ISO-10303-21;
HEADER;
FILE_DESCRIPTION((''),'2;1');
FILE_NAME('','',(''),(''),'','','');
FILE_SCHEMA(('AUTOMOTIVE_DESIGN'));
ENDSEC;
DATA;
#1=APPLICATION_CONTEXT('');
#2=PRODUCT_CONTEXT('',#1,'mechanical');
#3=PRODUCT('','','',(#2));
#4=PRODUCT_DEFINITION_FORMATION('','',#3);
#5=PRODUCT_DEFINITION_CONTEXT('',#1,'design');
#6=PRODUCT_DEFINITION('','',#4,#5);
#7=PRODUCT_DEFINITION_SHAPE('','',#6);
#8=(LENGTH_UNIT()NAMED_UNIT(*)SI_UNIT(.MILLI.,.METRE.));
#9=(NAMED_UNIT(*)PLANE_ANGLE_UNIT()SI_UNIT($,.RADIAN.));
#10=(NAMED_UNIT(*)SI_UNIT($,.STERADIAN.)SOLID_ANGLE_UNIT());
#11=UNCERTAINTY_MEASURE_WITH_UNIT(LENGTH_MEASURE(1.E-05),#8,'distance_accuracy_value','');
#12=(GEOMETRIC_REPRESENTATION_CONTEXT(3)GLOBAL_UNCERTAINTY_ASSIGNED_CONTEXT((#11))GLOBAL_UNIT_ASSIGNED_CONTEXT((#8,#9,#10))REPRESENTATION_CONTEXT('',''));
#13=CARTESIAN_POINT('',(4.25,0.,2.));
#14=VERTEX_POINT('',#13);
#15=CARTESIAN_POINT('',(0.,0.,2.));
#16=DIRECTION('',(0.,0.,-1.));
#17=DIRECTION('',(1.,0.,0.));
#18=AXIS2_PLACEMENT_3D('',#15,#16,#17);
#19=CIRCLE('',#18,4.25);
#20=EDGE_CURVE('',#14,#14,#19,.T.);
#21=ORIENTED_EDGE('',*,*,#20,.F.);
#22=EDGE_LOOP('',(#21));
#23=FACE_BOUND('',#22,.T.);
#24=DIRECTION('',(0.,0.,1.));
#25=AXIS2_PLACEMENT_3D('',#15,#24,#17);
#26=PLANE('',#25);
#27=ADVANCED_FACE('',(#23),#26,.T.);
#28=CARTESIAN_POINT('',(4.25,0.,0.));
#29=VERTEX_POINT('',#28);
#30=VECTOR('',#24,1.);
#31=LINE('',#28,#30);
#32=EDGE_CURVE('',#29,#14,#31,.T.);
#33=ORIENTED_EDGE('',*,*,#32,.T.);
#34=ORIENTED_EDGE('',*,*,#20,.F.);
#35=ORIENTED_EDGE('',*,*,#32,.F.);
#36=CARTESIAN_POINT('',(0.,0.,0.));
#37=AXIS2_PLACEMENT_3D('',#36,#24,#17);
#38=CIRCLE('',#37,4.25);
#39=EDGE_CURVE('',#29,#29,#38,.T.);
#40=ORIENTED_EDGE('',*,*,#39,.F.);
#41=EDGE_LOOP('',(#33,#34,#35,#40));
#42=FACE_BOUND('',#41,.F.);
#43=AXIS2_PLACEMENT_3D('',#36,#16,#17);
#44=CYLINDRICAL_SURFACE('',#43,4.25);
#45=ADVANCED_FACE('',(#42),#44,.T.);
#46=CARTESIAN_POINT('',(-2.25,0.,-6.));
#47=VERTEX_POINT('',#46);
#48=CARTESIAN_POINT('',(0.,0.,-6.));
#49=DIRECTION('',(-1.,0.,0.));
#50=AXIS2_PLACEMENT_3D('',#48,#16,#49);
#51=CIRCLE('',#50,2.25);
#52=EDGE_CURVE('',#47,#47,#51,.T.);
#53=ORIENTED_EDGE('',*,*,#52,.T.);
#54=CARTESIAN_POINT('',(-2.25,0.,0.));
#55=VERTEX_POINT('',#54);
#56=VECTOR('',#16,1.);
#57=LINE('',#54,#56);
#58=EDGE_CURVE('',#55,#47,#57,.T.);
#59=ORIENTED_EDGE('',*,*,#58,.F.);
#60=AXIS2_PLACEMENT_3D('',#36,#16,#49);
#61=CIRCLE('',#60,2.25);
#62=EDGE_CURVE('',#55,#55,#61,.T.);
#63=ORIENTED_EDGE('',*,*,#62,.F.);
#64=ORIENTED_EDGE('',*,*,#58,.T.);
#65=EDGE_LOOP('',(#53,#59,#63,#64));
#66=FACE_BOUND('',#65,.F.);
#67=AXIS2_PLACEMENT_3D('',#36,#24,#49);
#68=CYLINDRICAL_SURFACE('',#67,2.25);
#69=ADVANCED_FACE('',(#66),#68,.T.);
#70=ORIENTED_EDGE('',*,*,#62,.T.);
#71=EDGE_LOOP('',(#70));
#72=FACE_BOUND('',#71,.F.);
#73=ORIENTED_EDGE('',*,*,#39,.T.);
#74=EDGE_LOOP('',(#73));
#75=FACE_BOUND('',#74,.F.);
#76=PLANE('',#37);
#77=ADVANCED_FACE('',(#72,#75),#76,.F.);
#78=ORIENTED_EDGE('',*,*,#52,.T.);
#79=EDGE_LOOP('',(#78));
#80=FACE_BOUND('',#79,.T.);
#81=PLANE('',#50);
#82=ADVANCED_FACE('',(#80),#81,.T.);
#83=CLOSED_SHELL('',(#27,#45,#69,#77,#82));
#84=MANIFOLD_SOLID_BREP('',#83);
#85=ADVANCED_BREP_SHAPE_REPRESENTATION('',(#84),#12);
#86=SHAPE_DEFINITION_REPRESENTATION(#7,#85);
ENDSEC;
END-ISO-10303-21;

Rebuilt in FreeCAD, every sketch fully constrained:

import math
import FreeCAD as App
import Part
import Sketcher

V = App.Vector
Q = App.Units.Quantity

doc = App.newDocument("Part")
body = doc.addObject("PartDesign::Body", "Body")

sketch1 = doc.addObject("Sketcher::SketchObject", "Sketch")
body.addObject(sketch1)
sketch1.AttachmentSupport = (doc.XY_Plane, [""])
sketch1.MapMode = "FlatFace"
sketch1.addGeometry(Part.Circle(V(0, 0, 0), V(0, 0, 1), 4.2), False)
sketch1.addConstraint(Sketcher.Constraint("Coincident", 0, 3, -1, 1))
sketch1.addConstraint(Sketcher.Constraint("Diameter", 0, Q("8.5 mm")))
pad1 = doc.addObject("PartDesign::Pad", "Pad")
body.addObject(pad1)
pad1.Profile = sketch1
pad1.Length = 2

sketch2 = doc.addObject("Sketcher::SketchObject", "Sketch001")
body.addObject(sketch2)
sketch2.AttachmentSupport = (doc.XY_Plane, [""])
sketch2.MapMode = "FlatFace"
sketch2.addGeometry(Part.Circle(V(0, 0, 0), V(0, 0, 1), 2.2), False)
sketch2.addConstraint(Sketcher.Constraint("Coincident", 0, 3, -1, 1))
sketch2.addConstraint(Sketcher.Constraint("Diameter", 0, Q("4.5 mm")))
pad2 = doc.addObject("PartDesign::Pad", "Pad001")
body.addObject(pad2)
pad2.Profile = sketch2
pad2.Length = 6
pad2.Reversed = True

sketch3 = doc.addObject("Sketcher::SketchObject", "Sketch002")
body.addObject(sketch3)
sketch3.AttachmentSupport = (doc.XY_Plane, [""])
sketch3.MapMode = "FlatFace"
sketch3.AttachmentOffset = App.Placement(V(0, 0, 2), App.Rotation())
sketch3.addGeometry(Part.LineSegment(V(2.1, 3.7, 0), V(4.2, 0, 0)), False)
sketch3.addGeometry(Part.ArcOfCircle(Part.Circle(V(0, 0, 0), V(0, 0, 1), 4.2), math.radians(0), math.radians(60)), False)
sketch3.addGeometry(Part.ArcOfCircle(Part.Circle(V(0, 0, 0), V(0, 0, 1), 4.2), math.radians(-60), math.radians(0)), False)
sketch3.addGeometry(Part.LineSegment(V(4.2, 0, 0), V(2.1, -3.7, 0)), False)
sketch3.addGeometry(Part.LineSegment(V(-2.1, 3.7, 0), V(2.1, 3.7, 0)), False)
sketch3.addGeometry(Part.ArcOfCircle(Part.Circle(V(0, 0, 0), V(0, 0, 1), 4.2), math.radians(60), math.radians(120)), False)
sketch3.addGeometry(Part.ArcOfCircle(Part.Circle(V(0, 0, 0), V(0, 0, 1), 4.2), math.radians(-120), math.radians(-60)), False)
sketch3.addGeometry(Part.LineSegment(V(-2.1, -3.7, 0), V(2.1, -3.7, 0)), False)
sketch3.addGeometry(Part.LineSegment(V(-4.2, 0, 0), V(-2.1, 3.7, 0)), False)
sketch3.addGeometry(Part.ArcOfCircle(Part.Circle(V(0, 0, 0), V(0, 0, 1), 4.2), math.radians(120), math.radians(180)), False)
sketch3.addGeometry(Part.ArcOfCircle(Part.Circle(V(0, 0, 0), V(0, 0, 1), 4.2), math.radians(180), math.radians(240)), False)
sketch3.addGeometry(Part.LineSegment(V(-4.2, 0, 0), V(-2.1, -3.7, 0)), False)
sketch3.addConstraint(Sketcher.Constraint("Coincident", 0, 1, 1, 2))
sketch3.addConstraint(Sketcher.Constraint("Coincident", 1, 1, 0, 2))
sketch3.addConstraint(Sketcher.Constraint("Coincident", 2, 1, 3, 2))
sketch3.addConstraint(Sketcher.Constraint("Coincident", 3, 1, 2, 2))
sketch3.addConstraint(Sketcher.Constraint("Coincident", 4, 1, 5, 2))
sketch3.addConstraint(Sketcher.Constraint("Coincident", 5, 1, 4, 2))
sketch3.addConstraint(Sketcher.Constraint("Coincident", 6, 1, 7, 1))
sketch3.addConstraint(Sketcher.Constraint("Coincident", 7, 2, 6, 2))
sketch3.addConstraint(Sketcher.Constraint("Coincident", 8, 1, 9, 2))
sketch3.addConstraint(Sketcher.Constraint("Coincident", 9, 1, 8, 2))
sketch3.addConstraint(Sketcher.Constraint("Coincident", 10, 1, 11, 1))
sketch3.addConstraint(Sketcher.Constraint("Coincident", 11, 2, 10, 2))
sketch3.addConstraint(Sketcher.Constraint("Horizontal", 4))
sketch3.addConstraint(Sketcher.Constraint("Horizontal", 7))
sketch3.addConstraint(Sketcher.Constraint("Coincident", 1, 3, -1, 1))
sketch3.addConstraint(Sketcher.Constraint("Coincident", 2, 3, -1, 1))
sketch3.addConstraint(Sketcher.Constraint("Coincident", 5, 3, -1, 1))
sketch3.addConstraint(Sketcher.Constraint("Coincident", 6, 3, -1, 1))
sketch3.addConstraint(Sketcher.Constraint("Coincident", 9, 3, -1, 1))
sketch3.addConstraint(Sketcher.Constraint("Coincident", 10, 3, -1, 1))
sketch3.addConstraint(Sketcher.Constraint("Coincident", 3, 1, 1, 1))
sketch3.addConstraint(Sketcher.Constraint("Coincident", 5, 1, 0, 1))
sketch3.addConstraint(Sketcher.Constraint("Coincident", 7, 2, 2, 1))
sketch3.addConstraint(Sketcher.Constraint("Coincident", 9, 1, 4, 1))
sketch3.addConstraint(Sketcher.Constraint("Coincident", 10, 1, 8, 1))
sketch3.addConstraint(Sketcher.Constraint("PointOnObject", 1, 1, -1))
sketch3.addConstraint(Sketcher.Constraint("PointOnObject", 8, 1, -1))
sketch3.addConstraint(Sketcher.Constraint("Parallel", 3, 8))
sketch3.addConstraint(Sketcher.Constraint("Parallel", 0, 11))
sketch3.addConstraint(Sketcher.Constraint("Angle", 0, Q("-60 deg")))
sketch3.addConstraint(Sketcher.Constraint("Radius", 1, Q("4.25 mm")))
pad3 = doc.addObject("PartDesign::Pad", "Pad002")
body.addObject(pad3)
pad3.Profile = sketch3
pad3.Length = 2
pad3.Reversed = True

doc.recompute()
